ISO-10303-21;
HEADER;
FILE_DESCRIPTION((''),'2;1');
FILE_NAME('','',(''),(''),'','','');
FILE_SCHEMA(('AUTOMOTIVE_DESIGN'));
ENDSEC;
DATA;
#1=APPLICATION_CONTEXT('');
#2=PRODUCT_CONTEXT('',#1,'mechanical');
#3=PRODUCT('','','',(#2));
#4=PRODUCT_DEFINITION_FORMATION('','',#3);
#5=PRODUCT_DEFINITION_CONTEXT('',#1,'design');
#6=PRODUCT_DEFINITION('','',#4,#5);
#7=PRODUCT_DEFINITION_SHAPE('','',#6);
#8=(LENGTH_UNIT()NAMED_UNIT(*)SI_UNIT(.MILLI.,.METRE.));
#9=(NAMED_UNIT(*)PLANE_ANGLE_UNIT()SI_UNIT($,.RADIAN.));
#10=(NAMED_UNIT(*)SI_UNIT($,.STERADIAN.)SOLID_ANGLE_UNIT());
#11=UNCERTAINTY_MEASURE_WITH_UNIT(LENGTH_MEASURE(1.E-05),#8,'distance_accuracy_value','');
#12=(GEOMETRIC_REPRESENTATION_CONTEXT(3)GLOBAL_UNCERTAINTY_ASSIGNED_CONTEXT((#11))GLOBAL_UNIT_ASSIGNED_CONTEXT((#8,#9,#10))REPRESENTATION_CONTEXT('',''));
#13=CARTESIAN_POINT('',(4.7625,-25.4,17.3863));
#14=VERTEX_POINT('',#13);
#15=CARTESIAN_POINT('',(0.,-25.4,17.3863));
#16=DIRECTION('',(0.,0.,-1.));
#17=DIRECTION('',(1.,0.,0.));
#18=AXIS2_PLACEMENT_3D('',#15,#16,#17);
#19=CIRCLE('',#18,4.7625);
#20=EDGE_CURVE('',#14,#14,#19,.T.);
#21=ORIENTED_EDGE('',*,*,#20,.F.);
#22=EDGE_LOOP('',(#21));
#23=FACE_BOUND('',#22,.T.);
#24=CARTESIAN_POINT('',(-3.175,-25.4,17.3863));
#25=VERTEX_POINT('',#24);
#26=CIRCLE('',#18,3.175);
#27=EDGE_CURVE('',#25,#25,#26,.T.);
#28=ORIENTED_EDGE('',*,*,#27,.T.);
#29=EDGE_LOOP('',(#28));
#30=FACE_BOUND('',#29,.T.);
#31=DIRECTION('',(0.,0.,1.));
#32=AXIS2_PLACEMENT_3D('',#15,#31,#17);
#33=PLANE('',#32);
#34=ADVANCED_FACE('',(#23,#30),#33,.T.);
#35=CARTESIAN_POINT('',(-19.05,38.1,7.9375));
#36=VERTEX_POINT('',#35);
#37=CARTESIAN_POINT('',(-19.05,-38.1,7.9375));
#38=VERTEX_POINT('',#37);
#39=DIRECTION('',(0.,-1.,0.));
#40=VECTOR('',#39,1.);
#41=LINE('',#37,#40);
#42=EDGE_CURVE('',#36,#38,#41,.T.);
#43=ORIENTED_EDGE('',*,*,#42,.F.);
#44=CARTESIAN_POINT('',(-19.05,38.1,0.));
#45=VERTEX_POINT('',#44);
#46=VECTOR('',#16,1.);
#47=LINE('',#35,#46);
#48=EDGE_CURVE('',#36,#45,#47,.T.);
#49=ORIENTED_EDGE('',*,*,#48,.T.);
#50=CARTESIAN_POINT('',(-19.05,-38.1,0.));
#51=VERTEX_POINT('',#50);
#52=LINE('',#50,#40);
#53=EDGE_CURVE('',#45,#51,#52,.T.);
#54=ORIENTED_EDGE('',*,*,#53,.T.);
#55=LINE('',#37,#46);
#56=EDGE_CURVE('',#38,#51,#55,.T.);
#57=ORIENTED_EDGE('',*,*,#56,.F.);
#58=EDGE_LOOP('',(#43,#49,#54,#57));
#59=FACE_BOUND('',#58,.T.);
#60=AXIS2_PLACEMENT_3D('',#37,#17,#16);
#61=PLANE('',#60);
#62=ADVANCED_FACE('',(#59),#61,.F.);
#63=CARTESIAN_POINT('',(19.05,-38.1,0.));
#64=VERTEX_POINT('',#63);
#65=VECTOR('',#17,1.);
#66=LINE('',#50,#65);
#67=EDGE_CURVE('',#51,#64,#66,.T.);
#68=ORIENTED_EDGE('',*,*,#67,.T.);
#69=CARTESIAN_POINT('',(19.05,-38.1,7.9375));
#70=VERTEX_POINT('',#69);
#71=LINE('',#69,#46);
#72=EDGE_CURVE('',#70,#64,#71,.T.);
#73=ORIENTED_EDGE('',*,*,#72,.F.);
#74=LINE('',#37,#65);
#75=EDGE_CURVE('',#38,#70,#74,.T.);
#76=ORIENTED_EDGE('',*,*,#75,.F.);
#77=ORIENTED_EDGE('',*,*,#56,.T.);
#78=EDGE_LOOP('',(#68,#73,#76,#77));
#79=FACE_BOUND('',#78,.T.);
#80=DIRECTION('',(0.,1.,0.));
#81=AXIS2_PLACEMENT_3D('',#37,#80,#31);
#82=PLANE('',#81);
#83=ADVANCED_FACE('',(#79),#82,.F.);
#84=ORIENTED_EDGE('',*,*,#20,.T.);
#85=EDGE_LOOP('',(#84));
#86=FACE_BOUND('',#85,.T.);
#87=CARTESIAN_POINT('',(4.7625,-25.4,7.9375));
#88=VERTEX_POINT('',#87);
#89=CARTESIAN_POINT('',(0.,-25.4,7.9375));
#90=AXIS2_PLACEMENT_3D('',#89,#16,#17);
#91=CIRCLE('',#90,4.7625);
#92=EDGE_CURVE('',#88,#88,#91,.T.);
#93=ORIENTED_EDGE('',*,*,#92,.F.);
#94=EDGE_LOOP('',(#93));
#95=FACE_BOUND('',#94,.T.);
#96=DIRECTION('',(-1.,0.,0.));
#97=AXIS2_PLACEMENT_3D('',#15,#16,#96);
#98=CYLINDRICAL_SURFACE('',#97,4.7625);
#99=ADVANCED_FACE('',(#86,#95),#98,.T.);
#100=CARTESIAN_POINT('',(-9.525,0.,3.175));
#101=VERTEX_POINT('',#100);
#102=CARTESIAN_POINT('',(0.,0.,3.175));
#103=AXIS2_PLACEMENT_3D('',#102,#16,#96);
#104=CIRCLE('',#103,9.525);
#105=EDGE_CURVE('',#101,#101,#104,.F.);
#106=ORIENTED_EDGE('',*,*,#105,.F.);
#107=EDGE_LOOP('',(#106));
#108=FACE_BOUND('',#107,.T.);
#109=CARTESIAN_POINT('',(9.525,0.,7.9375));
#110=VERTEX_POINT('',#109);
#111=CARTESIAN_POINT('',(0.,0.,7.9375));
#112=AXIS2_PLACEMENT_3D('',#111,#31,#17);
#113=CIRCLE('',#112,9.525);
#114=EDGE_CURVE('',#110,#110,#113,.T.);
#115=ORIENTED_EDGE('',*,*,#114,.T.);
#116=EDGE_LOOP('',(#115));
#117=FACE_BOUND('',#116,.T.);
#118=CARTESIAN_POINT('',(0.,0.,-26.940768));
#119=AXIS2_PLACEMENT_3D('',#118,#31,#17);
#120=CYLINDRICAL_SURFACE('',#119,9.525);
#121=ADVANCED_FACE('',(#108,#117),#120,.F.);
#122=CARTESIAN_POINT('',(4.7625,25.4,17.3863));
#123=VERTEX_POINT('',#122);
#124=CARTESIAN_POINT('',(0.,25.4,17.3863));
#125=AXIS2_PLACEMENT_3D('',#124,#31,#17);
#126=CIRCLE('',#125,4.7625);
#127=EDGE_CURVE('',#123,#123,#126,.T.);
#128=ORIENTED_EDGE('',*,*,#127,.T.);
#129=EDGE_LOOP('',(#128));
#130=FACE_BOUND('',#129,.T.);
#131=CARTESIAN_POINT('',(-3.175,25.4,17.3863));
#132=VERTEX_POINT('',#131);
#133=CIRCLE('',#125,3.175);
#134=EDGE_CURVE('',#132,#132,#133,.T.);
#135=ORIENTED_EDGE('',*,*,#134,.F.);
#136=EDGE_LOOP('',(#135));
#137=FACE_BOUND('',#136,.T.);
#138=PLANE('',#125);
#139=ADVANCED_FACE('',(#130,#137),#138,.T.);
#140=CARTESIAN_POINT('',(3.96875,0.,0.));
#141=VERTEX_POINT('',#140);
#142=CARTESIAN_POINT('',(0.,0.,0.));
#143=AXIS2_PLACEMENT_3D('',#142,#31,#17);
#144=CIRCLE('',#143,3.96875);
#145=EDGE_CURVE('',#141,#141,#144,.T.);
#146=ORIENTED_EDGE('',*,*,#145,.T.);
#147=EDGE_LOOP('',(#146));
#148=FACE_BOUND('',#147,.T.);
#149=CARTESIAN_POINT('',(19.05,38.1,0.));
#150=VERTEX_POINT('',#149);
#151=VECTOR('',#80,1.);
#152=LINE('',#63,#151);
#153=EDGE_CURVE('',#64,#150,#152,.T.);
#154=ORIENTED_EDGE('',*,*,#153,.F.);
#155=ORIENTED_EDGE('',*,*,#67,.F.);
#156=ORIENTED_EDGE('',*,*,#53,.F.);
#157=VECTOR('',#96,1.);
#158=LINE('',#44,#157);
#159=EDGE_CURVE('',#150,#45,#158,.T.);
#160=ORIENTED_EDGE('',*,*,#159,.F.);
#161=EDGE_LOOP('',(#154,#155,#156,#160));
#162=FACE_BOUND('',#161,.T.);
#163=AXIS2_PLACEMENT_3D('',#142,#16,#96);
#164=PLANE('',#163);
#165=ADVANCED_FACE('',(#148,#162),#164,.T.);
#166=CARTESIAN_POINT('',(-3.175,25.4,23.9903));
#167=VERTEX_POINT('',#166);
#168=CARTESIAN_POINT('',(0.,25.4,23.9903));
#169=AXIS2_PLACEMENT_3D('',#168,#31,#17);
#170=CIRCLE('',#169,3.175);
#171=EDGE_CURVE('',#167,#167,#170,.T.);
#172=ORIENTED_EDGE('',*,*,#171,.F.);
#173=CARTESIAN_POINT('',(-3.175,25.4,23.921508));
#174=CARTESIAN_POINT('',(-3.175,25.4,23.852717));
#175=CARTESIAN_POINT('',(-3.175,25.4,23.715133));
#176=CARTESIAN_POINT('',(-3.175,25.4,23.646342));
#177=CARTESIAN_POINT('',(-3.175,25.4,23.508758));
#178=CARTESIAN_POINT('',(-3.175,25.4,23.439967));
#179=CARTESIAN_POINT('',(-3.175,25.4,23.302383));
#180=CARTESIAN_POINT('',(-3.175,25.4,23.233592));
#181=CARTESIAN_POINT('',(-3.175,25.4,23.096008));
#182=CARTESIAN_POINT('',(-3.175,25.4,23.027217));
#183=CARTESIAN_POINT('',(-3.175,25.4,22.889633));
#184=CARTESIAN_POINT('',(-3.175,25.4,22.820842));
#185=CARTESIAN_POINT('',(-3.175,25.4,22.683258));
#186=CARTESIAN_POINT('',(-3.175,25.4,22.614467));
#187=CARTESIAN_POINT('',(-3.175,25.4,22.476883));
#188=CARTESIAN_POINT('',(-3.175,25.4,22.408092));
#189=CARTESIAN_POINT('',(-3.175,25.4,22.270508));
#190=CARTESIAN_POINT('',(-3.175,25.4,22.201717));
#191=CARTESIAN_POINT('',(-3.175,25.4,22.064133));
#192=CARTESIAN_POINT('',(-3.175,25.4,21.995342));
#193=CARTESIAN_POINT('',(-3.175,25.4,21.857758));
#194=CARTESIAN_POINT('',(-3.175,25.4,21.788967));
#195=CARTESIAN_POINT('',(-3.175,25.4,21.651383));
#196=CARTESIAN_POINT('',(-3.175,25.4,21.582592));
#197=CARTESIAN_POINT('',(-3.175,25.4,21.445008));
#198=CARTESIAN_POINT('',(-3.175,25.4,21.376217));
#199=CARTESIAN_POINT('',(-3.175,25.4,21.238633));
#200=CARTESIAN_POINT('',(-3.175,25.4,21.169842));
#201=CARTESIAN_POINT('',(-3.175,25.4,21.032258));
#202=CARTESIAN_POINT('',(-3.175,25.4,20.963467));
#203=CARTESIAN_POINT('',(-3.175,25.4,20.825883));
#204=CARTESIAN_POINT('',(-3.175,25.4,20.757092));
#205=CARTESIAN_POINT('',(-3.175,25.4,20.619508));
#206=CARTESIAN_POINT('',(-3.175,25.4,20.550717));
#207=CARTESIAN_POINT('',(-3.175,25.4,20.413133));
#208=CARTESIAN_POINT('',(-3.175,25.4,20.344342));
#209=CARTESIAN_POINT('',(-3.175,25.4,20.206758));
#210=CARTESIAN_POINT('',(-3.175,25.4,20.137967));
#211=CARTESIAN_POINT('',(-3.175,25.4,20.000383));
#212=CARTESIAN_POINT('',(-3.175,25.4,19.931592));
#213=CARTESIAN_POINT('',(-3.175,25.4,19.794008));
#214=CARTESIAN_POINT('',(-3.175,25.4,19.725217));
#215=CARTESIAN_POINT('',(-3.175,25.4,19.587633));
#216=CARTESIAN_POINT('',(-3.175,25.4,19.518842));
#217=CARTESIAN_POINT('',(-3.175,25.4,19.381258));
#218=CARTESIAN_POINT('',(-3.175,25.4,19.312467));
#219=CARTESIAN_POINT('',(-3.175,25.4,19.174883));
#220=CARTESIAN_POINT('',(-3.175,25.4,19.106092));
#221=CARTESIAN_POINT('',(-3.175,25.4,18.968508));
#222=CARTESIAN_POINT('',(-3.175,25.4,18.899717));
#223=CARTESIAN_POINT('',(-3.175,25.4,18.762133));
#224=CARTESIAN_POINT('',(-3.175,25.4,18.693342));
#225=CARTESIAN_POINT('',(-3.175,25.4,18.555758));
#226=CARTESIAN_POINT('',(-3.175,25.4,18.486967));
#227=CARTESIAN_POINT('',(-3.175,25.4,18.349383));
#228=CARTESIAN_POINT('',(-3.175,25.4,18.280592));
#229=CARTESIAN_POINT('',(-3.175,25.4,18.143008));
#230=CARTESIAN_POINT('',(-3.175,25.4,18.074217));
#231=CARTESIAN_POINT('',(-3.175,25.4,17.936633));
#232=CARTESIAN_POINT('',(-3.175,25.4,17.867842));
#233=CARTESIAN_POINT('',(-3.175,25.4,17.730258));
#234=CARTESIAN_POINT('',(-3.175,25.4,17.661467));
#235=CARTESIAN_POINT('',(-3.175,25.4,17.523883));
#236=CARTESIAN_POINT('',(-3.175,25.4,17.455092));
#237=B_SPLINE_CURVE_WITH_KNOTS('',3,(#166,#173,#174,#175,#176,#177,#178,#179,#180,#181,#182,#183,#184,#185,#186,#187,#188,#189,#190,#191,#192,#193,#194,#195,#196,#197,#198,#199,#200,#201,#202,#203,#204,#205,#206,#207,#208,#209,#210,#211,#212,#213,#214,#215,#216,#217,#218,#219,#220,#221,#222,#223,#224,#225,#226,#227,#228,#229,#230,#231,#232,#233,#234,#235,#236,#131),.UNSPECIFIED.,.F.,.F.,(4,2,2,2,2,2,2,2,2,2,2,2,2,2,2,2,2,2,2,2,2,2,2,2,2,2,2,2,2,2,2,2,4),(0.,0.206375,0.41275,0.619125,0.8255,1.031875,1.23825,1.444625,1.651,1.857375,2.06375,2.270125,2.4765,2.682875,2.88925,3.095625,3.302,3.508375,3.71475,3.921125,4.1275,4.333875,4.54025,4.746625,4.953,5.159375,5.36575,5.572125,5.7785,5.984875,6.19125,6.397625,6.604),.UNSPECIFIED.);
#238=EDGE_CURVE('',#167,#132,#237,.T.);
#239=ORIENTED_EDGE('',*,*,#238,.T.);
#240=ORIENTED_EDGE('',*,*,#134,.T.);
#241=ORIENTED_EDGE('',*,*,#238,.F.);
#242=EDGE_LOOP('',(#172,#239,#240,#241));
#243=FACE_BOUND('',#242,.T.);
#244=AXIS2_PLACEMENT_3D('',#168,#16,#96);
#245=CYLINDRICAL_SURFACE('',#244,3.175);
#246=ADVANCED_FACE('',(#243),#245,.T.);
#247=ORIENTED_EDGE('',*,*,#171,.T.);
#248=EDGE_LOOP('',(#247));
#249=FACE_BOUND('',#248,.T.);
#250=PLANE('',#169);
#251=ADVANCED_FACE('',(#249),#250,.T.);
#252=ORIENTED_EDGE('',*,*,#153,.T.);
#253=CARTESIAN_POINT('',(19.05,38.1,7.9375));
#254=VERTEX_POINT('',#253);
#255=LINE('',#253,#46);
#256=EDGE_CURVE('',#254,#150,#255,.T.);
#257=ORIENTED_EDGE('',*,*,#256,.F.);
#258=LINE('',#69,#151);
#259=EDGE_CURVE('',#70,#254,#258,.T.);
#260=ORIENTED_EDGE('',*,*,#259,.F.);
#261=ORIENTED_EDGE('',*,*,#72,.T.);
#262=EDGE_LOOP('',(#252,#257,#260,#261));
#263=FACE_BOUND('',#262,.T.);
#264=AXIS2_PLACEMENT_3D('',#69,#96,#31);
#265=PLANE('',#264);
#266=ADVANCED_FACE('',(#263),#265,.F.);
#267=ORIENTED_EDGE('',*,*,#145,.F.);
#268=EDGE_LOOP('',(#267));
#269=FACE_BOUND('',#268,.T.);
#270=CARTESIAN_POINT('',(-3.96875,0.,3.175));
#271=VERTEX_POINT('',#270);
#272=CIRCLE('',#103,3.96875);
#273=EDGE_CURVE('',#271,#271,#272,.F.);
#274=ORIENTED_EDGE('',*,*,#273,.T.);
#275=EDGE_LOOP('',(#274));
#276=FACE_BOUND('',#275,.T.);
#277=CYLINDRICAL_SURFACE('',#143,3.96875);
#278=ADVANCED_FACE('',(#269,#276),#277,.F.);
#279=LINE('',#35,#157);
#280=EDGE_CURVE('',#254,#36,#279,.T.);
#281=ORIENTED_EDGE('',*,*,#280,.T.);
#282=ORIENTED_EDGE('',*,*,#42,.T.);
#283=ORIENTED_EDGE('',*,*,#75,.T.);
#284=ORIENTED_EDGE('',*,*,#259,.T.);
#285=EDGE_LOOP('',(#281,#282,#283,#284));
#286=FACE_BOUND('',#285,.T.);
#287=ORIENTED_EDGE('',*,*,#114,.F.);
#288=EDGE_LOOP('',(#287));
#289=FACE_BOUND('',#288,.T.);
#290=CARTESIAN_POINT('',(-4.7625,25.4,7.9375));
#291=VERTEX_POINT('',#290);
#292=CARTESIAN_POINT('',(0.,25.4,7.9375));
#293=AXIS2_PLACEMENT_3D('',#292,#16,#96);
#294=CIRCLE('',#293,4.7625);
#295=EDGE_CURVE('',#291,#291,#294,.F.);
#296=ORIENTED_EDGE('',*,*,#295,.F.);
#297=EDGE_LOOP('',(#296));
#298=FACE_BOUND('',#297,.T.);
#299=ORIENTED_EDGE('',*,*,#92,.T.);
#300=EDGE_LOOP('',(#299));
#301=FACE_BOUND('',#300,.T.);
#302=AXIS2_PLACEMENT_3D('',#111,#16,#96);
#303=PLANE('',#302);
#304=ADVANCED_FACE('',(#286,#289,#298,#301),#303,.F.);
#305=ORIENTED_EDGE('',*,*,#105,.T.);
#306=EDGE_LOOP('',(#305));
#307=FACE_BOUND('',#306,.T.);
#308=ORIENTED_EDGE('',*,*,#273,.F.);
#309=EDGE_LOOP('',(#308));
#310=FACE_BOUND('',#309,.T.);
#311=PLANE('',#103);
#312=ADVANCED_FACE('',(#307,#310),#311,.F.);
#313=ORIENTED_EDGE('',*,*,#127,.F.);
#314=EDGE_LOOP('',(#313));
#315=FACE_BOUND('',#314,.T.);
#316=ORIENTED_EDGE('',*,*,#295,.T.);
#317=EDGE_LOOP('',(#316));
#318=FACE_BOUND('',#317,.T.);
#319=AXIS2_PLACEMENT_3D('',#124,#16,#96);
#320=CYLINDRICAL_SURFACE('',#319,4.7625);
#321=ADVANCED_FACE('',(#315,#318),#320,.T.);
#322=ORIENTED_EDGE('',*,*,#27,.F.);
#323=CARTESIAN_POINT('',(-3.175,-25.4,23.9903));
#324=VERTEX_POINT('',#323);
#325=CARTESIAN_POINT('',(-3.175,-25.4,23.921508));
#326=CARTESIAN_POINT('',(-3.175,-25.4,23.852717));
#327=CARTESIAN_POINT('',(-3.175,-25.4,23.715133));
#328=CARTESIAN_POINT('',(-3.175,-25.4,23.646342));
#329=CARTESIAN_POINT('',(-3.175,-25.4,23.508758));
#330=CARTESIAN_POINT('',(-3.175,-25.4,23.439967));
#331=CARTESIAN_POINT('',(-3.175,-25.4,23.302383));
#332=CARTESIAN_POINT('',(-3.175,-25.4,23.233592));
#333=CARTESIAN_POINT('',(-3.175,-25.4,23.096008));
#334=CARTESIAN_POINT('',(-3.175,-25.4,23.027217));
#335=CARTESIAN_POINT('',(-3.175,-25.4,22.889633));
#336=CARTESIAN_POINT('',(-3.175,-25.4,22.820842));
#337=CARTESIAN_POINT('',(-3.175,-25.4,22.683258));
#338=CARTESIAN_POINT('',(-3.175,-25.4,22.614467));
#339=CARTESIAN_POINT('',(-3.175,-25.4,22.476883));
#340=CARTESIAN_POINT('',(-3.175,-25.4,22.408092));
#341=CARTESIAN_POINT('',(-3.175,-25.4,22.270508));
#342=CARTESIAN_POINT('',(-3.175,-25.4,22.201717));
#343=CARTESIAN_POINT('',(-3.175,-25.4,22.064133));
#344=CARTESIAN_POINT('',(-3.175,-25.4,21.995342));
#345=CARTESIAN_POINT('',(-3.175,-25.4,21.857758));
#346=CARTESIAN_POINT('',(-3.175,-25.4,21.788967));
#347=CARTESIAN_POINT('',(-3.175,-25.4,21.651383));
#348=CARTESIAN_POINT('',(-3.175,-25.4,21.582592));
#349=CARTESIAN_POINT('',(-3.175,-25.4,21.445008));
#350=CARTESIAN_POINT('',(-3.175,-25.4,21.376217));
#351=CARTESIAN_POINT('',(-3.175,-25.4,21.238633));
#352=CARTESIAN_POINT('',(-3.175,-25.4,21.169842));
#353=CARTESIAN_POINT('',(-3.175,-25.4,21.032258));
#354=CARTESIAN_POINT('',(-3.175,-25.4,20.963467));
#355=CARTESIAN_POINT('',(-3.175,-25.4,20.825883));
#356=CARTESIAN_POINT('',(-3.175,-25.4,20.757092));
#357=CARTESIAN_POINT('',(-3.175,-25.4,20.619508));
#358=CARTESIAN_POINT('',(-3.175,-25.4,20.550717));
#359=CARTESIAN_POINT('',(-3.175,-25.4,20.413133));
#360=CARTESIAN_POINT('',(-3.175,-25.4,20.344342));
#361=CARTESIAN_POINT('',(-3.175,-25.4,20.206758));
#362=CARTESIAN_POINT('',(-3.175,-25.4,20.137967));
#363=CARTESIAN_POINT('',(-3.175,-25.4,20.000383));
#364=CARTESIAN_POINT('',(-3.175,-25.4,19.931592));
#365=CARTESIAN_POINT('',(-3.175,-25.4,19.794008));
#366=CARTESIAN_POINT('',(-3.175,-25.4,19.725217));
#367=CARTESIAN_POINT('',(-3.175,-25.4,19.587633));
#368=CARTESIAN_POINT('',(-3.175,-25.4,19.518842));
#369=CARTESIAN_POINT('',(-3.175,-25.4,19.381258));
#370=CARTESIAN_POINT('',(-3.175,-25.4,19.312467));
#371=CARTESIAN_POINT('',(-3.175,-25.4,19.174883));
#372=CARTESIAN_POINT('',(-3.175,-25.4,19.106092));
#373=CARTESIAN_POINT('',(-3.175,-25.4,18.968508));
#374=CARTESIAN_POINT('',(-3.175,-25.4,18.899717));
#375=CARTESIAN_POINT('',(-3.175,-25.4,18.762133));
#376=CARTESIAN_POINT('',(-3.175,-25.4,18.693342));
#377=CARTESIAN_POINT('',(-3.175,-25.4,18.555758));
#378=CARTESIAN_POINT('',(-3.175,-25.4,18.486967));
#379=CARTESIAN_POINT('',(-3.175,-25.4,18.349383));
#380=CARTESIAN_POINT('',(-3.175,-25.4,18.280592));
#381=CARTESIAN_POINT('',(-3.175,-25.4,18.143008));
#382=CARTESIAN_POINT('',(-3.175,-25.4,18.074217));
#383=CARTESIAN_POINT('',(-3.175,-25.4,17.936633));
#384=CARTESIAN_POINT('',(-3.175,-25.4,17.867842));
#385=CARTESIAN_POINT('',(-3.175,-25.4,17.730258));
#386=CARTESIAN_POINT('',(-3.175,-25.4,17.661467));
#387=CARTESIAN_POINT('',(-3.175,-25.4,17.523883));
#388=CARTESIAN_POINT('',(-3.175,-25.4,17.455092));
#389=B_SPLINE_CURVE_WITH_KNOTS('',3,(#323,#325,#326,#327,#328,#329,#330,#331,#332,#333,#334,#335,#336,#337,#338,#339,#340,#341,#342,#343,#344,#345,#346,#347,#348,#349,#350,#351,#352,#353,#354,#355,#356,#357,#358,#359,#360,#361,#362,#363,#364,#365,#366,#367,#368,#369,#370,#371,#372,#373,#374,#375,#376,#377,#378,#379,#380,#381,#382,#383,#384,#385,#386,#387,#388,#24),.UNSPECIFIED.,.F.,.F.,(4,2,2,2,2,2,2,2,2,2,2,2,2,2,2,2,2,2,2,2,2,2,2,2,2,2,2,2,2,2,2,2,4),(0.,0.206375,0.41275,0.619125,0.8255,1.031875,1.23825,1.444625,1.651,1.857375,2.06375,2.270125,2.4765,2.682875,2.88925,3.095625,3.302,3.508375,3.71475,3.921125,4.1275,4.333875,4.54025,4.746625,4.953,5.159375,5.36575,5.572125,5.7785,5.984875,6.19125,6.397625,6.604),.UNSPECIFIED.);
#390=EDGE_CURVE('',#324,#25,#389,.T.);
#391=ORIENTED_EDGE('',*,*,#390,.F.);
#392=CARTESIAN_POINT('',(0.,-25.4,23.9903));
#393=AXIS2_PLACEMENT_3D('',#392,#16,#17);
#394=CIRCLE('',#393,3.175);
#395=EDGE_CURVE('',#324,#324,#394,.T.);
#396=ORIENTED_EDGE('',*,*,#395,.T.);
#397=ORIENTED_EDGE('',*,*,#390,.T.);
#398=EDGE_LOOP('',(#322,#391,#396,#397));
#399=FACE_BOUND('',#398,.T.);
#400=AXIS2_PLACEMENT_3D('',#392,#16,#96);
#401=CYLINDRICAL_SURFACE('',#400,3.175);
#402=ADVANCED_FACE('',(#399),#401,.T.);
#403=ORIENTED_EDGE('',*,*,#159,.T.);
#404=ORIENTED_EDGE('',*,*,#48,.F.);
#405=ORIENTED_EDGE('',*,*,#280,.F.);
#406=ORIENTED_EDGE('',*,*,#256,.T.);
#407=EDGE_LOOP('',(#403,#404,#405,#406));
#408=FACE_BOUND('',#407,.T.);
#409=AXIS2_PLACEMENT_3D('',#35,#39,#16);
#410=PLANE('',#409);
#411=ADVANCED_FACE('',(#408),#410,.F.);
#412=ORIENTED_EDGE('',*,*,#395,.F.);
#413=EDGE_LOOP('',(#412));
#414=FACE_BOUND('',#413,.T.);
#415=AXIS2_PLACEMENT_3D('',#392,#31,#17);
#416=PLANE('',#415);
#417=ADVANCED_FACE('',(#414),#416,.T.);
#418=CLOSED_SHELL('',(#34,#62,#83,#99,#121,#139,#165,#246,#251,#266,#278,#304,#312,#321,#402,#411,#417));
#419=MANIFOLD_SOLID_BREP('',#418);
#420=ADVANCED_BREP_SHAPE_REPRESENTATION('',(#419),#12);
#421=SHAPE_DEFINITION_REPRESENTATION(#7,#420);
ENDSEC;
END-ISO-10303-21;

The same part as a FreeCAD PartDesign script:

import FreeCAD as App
import Part
import Sketcher

V = App.Vector
Q = App.Units.Quantity


def add_polygon(sketch, points):
    """Adds a closed chain of lines whose ends are joined by coincident constraints."""
    first, n = sketch.GeometryCount, len(points)
    for a, b in zip(points, points[1:] + points[:1]):
        sketch.addGeometry(Part.LineSegment(App.Vector(*a, 0), App.Vector(*b, 0)), False)
    for i in range(n):
        sketch.addConstraint(Sketcher.Constraint("Coincident", first + i, 2, first + (i + 1) % n, 1))

doc = App.newDocument("Part")
body = doc.addObject("PartDesign::Body", "Body")

# Sketch on XY plane
sketch1 = body.newObject("Sketcher::SketchObject", "Sketch")
sketch1.AttachmentSupport = (doc.getObject("XY_Plane"), [""])
sketch1.MapMode = "FlatFace"
add_polygon(sketch1, [(-19, 38), (-19, -38), (19, -38), (19, 38)])  # lines 0-3
sketch1.addConstraint([
    Sketcher.Constraint("Vertical", 0),
    Sketcher.Constraint("Horizontal", 1),
    Sketcher.Constraint("Vertical", 2),
    Sketcher.Constraint("Horizontal", 3),
    Sketcher.Constraint("Symmetric", 0, 2, 2, 2, -1, 1),
    Sketcher.Constraint("DistanceY", 0, 2, 0, 1, Q("3 in")),
    Sketcher.Constraint("DistanceX", 1, 1, 1, 2, Q("1.5 in")),
])
pad1 = body.newObject("PartDesign::Pad", "Pad")
pad1.Profile = sketch1
pad1.Length = Q("0.3125 in")

# Sketch on XY plane
sketch2 = body.newObject("Sketcher::SketchObject", "Sketch001")
sketch2.AttachmentSupport = (doc.getObject("XY_Plane"), [""])
sketch2.MapMode = "FlatFace"
sketch2.AttachmentOffset = App.Placement(V(0, 0, 0.3125 * 25.4), App.Rotation())
sketch2.addGeometry(Part.Circle(V(0, 0, 0), V(0, 0, 1), 4), False)
sketch2.addConstraint([
    Sketcher.Constraint("Coincident", 0, 3, -1, 1),
    Sketcher.Constraint("Diameter", 0, Q("0.3125 in")),
])
pocket1 = body.newObject("PartDesign::Pocket", "Pocket")
pocket1.Profile = sketch2
pocket1.Type = "ThroughAll"

# Sketch on XY plane
sketch3 = body.newObject("Sketcher::SketchObject", "Sketch002")
sketch3.AttachmentSupport = (doc.getObject("XY_Plane"), [""])
sketch3.MapMode = "FlatFace"
sketch3.AttachmentOffset = App.Placement(V(0, 0, 0.3125 * 25.4), App.Rotation())
sketch3.addGeometry(Part.Circle(V(0, 0, 0), V(0, 0, 1), 10), False)
sketch3.addConstraint([
    Sketcher.Constraint("Coincident", 0, 3, -1, 1),
    Sketcher.Constraint("Diameter", 0, Q("0.75 in")),
])
pocket2 = body.newObject("PartDesign::Pocket", "Pocket001")
pocket2.Profile = sketch3
pocket2.Length = Q("0.1875 in")

# Sketch on XY plane
sketch4 = body.newObject("Sketcher::SketchObject", "Sketch003")
sketch4.AttachmentSupport = (doc.getObject("XY_Plane"), [""])
sketch4.MapMode = "FlatFace"
sketch4.AttachmentOffset = App.Placement(V(0, 0, 0.3125 * 25.4), App.Rotation())
sketch4.addGeometry(Part.Circle(V(0, 25.4, 0), V(0, 0, 1), 4.8), False)
sketch4.addConstraint([
    Sketcher.Constraint("PointOnObject", 0, 3, -2),
    Sketcher.Constraint("Diameter", 0, Q("0.375 in")),
    Sketcher.Constraint("DistanceY", -1, 1, 0, 3, Q("1 in")),
])
pad2 = body.newObject("PartDesign::Pad", "Pad001")
pad2.Profile = sketch4
pad2.Length = Q("0.372 in")

# Sketch on XY plane
sketch5 = body.newObject("Sketcher::SketchObject", "Sketch004")
sketch5.AttachmentSupport = (doc.getObject("XY_Plane"), [""])
sketch5.MapMode = "FlatFace"
sketch5.AttachmentOffset = App.Placement(V(0, 0, 0.6845 * 25.4), App.Rotation())
sketch5.addGeometry(Part.Circle(V(0, 25.4, 0), V(0, 0, 1), 3.2), False)
sketch5.addConstraint([
    Sketcher.Constraint("PointOnObject", 0, 3, -2),
    Sketcher.Constraint("Diameter", 0, Q("0.25 in")),
    Sketcher.Constraint("DistanceY", -1, 1, 0, 3, Q("1 in")),
])
pad3 = body.newObject("PartDesign::Pad", "Pad002")
pad3.Profile = sketch5
pad3.Length = Q("0.26 in")
doc.recompute()

mirrored = body.newObject("PartDesign::Mirrored", "Mirrored")
mirrored.Originals = [pad2, pad3]
mirrored.MirrorPlane = (doc.getObject("XZ_Plane"), [""])
body.Tip = mirrored

doc.recompute()
